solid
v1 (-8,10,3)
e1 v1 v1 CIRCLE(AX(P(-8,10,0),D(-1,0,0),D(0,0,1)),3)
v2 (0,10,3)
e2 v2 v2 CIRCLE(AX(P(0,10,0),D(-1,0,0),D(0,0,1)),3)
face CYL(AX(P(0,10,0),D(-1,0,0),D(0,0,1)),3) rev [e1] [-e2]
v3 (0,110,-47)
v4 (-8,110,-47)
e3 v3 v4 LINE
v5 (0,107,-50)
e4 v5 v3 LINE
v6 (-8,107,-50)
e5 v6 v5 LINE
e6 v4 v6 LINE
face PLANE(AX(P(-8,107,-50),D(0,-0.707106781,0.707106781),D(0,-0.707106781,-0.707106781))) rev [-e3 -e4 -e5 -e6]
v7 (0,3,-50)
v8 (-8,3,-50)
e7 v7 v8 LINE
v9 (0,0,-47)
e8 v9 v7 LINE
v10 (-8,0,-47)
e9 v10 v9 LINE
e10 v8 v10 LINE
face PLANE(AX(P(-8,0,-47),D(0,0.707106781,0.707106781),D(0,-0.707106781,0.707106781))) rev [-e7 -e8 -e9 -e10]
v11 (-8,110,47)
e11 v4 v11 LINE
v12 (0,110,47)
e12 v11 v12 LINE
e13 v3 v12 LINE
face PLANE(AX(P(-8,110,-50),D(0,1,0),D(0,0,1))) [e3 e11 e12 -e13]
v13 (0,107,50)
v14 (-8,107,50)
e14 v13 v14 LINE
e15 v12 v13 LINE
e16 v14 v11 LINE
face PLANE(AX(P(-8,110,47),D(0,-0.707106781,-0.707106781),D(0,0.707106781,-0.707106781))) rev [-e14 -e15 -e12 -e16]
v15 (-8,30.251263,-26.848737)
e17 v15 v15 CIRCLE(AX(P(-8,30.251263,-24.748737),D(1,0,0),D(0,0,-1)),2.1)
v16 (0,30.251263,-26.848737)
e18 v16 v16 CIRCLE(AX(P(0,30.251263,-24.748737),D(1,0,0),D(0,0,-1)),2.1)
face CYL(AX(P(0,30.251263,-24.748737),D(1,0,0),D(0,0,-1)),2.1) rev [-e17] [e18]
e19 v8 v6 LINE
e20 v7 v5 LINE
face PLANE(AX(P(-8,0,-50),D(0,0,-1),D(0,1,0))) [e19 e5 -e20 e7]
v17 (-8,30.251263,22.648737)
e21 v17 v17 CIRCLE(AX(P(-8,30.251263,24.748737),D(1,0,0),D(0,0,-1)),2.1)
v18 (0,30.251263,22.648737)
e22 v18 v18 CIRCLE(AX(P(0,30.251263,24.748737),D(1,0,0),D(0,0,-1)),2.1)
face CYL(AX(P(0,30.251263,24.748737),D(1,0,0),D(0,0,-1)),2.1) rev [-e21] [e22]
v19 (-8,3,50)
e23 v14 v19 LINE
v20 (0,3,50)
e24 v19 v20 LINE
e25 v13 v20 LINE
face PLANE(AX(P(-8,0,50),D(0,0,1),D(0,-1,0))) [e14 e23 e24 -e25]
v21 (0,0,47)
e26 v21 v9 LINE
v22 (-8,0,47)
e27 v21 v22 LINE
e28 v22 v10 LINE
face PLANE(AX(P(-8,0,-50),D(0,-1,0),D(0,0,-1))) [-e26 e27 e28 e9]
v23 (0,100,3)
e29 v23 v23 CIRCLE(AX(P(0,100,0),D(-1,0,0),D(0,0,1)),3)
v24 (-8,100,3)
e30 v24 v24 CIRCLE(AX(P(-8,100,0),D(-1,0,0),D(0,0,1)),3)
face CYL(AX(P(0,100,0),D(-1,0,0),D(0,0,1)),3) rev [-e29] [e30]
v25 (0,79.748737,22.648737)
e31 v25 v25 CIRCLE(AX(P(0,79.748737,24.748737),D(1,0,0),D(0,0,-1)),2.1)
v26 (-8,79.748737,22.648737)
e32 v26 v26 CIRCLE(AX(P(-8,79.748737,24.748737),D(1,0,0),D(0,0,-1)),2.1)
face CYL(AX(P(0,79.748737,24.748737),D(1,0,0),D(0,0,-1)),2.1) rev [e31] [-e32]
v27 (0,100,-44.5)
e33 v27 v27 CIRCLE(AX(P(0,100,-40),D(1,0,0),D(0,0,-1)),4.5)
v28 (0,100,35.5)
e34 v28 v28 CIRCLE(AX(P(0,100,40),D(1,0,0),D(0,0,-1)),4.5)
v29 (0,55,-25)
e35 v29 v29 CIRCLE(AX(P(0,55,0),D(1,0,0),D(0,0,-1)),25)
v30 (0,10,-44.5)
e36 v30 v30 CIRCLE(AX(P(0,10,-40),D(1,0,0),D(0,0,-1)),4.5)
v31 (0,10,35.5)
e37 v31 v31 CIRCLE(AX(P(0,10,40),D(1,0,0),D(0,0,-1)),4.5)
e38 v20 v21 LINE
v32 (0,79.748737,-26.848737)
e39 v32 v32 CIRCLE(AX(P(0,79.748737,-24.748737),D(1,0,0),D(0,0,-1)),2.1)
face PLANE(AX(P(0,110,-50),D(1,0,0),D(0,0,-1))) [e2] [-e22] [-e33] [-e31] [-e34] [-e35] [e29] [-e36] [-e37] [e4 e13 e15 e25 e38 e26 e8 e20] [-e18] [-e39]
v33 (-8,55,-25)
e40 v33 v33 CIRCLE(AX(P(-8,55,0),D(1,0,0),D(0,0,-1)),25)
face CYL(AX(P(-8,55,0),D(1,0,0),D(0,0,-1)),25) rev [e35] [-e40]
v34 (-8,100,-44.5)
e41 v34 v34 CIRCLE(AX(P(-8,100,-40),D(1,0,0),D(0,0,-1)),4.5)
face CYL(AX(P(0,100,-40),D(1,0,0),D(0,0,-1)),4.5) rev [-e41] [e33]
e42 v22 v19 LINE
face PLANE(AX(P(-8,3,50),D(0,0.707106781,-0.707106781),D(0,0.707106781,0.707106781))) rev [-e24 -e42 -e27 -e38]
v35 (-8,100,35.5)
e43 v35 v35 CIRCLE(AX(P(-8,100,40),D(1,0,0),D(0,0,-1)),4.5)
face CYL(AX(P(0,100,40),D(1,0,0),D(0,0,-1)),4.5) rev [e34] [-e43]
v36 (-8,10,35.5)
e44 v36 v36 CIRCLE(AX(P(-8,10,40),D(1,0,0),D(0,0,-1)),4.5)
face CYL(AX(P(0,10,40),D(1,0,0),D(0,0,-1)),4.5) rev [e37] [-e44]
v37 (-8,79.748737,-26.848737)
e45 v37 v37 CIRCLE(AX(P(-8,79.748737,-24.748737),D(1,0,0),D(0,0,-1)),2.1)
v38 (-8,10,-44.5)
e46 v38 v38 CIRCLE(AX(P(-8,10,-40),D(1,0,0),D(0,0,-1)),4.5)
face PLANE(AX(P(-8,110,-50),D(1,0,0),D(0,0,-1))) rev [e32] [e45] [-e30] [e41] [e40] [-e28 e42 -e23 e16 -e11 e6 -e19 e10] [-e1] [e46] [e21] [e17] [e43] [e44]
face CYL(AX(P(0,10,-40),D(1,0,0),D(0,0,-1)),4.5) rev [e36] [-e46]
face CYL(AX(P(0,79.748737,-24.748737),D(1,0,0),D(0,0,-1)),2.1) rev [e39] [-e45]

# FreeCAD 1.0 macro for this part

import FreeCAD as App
import Part
import Sketcher

V = App.Vector
Q = App.Units.Quantity


def edges_at(feature, points):
    """Names of the edges that pass closest to the given points."""
    edges = feature.Shape.Edges
    near = lambda p: min(range(len(edges)), key=lambda i: edges[i].distToShape(Part.Vertex(*p))[0])
    return sorted({f"Edge{near(p) + 1}" for p in points})


def add_polygon(sketch, points):
    """Adds a closed chain of lines whose ends are joined by coincident constraints."""
    first, n = sketch.GeometryCount, len(points)
    for a, b in zip(points, points[1:] + points[:1]):
        sketch.addGeometry(Part.LineSegment(App.Vector(*a, 0), App.Vector(*b, 0)), False)
    for i in range(n):
        sketch.addConstraint(Sketcher.Constraint("Coincident", first + i, 2, first + (i + 1) % n, 1))

doc = App.newDocument("Part")
body = doc.addObject("PartDesign::Body", "Body")

# Sketch on YZ plane
sketch1 = body.newObject("Sketcher::SketchObject", "Sketch")
sketch1.AttachmentSupport = (doc.getObject("YZ_Plane"), [""])
sketch1.MapMode = "FlatFace"
add_polygon(sketch1, [(110, 50), (0, 50), (0, -50), (110, -50)])  # lines 0-3
sketch1.addConstraint(Sketcher.Constraint("Horizontal", 0))
sketch1.addConstraint(Sketcher.Constraint("Vertical", 1))
sketch1.addConstraint(Sketcher.Constraint("Horizontal", 2))
sketch1.addConstraint(Sketcher.Constraint("Vertical", 3))
sketch1.addConstraint(Sketcher.Constraint("Symmetric", 0, 2, 1, 2, -1, 1))
sketch1.addConstraint(Sketcher.Constraint("DistanceX", 0, 2, 0, 1, Q("110 mm")))
sketch1.addConstraint(Sketcher.Constraint("DistanceY", 1, 2, 1, 1, Q("100 mm")))
pad1 = body.newObject("PartDesign::Pad", "Pad")
pad1.Profile = sketch1
pad1.Length = 8
pad1.Reversed = True

# Sketch on YZ plane
sketch2 = body.newObject("Sketcher::SketchObject", "Sketch001")
sketch2.AttachmentSupport = (doc.getObject("YZ_Plane"), [""])
sketch2.MapMode = "FlatFace"
sketch2.addGeometry(Part.Circle(V(55, 0, 0), V(0, 0, 1), 25), False)
sketch2.addConstraint(Sketcher.Constraint("PointOnObject", 0, 3, -1))
sketch2.addConstraint(Sketcher.Constraint("Diameter", 0, Q("50 mm")))
sketch2.addConstraint(Sketcher.Constraint("DistanceX", -1, 1, 0, 3, Q("55 mm")))
pocket1 = body.newObject("PartDesign::Pocket", "Pocket")
pocket1.Profile = sketch2
pocket1.Type = "ThroughAll"

# Sketch on YZ plane
sketch3 = body.newObject("Sketcher::SketchObject", "Sketch002")
sketch3.AttachmentSupport = (doc.getObject("YZ_Plane"), [""])
sketch3.MapMode = "FlatFace"
sketch3.AttachmentOffset = App.Placement(V(0, 0, -8), App.Rotation())
sketch3.addGeometry(Part.Circle(V(10, 0, 0), V(0, 0, 1), 3), False)
sketch3.addGeometry(Part.Circle(V(100, 0, 0), V(0, 0, 1), 3), False)
sketch3.addConstraint(Sketcher.Constraint("Equal", 0, 1))
sketch3.addConstraint(Sketcher.Constraint("PointOnObject", 0, 3, -1))
sketch3.addConstraint(Sketcher.Constraint("PointOnObject", 1, 3, -1))
sketch3.addConstraint(Sketcher.Constraint("Diameter", 0, Q("6 mm")))
sketch3.addConstraint(Sketcher.Constraint("DistanceX", -1, 1, 0, 3, Q("10 mm")))
sketch3.addConstraint(Sketcher.Constraint("DistanceX", -1, 1, 1, 3, Q("100 mm")))
pocket2 = body.newObject("PartDesign::Pocket", "Pocket001")
pocket2.Profile = sketch3
pocket2.Type = "ThroughAll"
pocket2.Reversed = True

# Sketch on YZ plane
sketch4 = body.newObject("Sketcher::SketchObject", "Sketch003")
sketch4.AttachmentSupport = (doc.getObject("YZ_Plane"), [""])
sketch4.MapMode = "FlatFace"
sketch4.addGeometry(Part.Circle(V(100, 40, 0), V(0, 0, 1), 4.5), False)
sketch4.addGeometry(Part.Circle(V(10, 40, 0), V(0, 0, 1), 4.5), False)
sketch4.addGeometry(Part.Circle(V(10, -40, 0), V(0, 0, 1), 4.5), False)
sketch4.addGeometry(Part.Circle(V(100, -40, 0), V(0, 0, 1), 4.5), False)
sketch4.addConstraint(Sketcher.Constraint("Equal", 0, 1))
sketch4.addConstraint(Sketcher.Constraint("Equal", 1, 2))
sketch4.addConstraint(Sketcher.Constraint("Equal", 2, 3))
sketch4.addConstraint(Sketcher.Constraint("Symmetric", 1, 3, 2, 3, -1))
sketch4.addConstraint(Sketcher.Constraint("Symmetric", 0, 3, 3, 3, -1))
sketch4.addConstraint(Sketcher.Constraint("Horizontal", 0, 3, 1, 3))
sketch4.addConstraint(Sketcher.Constraint("Diameter", 0, Q("9 mm")))
sketch4.addConstraint(Sketcher.Constraint("DistanceX", -1, 1, 0, 3, Q("100 mm")))
sketch4.addConstraint(Sketcher.Constraint("DistanceY", -1, 1, 0, 3, Q("40 mm")))
sketch4.addConstraint(Sketcher.Constraint("DistanceX", -1, 1, 1, 3, Q("10 mm")))
doc.recompute()
hole = body.newObject("PartDesign::Hole", "Hole")
hole.Profile = sketch4
hole.ThreadType = "None"
hole.Diameter = 9
hole.DepthType = "ThroughAll"

# Sketch on YZ plane
sketch5 = body.newObject("Sketcher::SketchObject", "Sketch004")
sketch5.AttachmentSupport = (doc.getObject("YZ_Plane"), [""])
sketch5.MapMode = "FlatFace"
sketch5.addGeometry(Part.Circle(V(79.748737, -24.748737, 0), V(0, 0, 1), 2.1), False)
sketch5.addGeometry(Part.Circle(V(79.748737, 24.748737, 0), V(0, 0, 1), 2.1), False)
sketch5.addGeometry(Part.Circle(V(30.251263, 24.748737, 0), V(0, 0, 1), 2.1), False)
sketch5.addGeometry(Part.Circle(V(30.251263, -24.748737, 0), V(0, 0, 1), 2.1), False)
sketch5.addConstraint(Sketcher.Constraint("Equal", 0, 1))
sketch5.addConstraint(Sketcher.Constraint("Equal", 1, 2))
sketch5.addConstraint(Sketcher.Constraint("Equal", 2, 3))
sketch5.addConstraint(Sketcher.Constraint("Symmetric", 0, 3, 1, 3, -1))
sketch5.addConstraint(Sketcher.Constraint("Symmetric", 2, 3, 3, 3, -1))
sketch5.addConstraint(Sketcher.Constraint("Horizontal", 1, 3, 2, 3))
sketch5.addConstraint(Sketcher.Constraint("Diameter", 0, Q("4.2 mm")))
sketch5.addConstraint(Sketcher.Constraint("DistanceX", -1, 1, 0, 3, Q("79.748737 mm")))
sketch5.addConstraint(Sketcher.Constraint("DistanceY", 0, 3, -1, 1, Q("24.748737 mm")))
sketch5.addConstraint(Sketcher.Constraint("DistanceX", -1, 1, 2, 3, Q("30.251263 mm")))
doc.recompute()
hole2 = body.newObject("PartDesign::Hole", "Hole001")
hole2.Profile = sketch5
hole2.ThreadType = "None"
hole2.Diameter = 4.2
hole2.DepthType = "ThroughAll"
doc.recompute()

chamfer = body.newObject("PartDesign::Chamfer", "Chamfer")
chamfer.Base = (hole2, edges_at(hole2, [
    (-4, 0, -50),
    (-4, 0, 50),
    (-4, 110, 50),
    (-4, 110, -50),
]))
chamfer.Size = 3

doc.recompute()
